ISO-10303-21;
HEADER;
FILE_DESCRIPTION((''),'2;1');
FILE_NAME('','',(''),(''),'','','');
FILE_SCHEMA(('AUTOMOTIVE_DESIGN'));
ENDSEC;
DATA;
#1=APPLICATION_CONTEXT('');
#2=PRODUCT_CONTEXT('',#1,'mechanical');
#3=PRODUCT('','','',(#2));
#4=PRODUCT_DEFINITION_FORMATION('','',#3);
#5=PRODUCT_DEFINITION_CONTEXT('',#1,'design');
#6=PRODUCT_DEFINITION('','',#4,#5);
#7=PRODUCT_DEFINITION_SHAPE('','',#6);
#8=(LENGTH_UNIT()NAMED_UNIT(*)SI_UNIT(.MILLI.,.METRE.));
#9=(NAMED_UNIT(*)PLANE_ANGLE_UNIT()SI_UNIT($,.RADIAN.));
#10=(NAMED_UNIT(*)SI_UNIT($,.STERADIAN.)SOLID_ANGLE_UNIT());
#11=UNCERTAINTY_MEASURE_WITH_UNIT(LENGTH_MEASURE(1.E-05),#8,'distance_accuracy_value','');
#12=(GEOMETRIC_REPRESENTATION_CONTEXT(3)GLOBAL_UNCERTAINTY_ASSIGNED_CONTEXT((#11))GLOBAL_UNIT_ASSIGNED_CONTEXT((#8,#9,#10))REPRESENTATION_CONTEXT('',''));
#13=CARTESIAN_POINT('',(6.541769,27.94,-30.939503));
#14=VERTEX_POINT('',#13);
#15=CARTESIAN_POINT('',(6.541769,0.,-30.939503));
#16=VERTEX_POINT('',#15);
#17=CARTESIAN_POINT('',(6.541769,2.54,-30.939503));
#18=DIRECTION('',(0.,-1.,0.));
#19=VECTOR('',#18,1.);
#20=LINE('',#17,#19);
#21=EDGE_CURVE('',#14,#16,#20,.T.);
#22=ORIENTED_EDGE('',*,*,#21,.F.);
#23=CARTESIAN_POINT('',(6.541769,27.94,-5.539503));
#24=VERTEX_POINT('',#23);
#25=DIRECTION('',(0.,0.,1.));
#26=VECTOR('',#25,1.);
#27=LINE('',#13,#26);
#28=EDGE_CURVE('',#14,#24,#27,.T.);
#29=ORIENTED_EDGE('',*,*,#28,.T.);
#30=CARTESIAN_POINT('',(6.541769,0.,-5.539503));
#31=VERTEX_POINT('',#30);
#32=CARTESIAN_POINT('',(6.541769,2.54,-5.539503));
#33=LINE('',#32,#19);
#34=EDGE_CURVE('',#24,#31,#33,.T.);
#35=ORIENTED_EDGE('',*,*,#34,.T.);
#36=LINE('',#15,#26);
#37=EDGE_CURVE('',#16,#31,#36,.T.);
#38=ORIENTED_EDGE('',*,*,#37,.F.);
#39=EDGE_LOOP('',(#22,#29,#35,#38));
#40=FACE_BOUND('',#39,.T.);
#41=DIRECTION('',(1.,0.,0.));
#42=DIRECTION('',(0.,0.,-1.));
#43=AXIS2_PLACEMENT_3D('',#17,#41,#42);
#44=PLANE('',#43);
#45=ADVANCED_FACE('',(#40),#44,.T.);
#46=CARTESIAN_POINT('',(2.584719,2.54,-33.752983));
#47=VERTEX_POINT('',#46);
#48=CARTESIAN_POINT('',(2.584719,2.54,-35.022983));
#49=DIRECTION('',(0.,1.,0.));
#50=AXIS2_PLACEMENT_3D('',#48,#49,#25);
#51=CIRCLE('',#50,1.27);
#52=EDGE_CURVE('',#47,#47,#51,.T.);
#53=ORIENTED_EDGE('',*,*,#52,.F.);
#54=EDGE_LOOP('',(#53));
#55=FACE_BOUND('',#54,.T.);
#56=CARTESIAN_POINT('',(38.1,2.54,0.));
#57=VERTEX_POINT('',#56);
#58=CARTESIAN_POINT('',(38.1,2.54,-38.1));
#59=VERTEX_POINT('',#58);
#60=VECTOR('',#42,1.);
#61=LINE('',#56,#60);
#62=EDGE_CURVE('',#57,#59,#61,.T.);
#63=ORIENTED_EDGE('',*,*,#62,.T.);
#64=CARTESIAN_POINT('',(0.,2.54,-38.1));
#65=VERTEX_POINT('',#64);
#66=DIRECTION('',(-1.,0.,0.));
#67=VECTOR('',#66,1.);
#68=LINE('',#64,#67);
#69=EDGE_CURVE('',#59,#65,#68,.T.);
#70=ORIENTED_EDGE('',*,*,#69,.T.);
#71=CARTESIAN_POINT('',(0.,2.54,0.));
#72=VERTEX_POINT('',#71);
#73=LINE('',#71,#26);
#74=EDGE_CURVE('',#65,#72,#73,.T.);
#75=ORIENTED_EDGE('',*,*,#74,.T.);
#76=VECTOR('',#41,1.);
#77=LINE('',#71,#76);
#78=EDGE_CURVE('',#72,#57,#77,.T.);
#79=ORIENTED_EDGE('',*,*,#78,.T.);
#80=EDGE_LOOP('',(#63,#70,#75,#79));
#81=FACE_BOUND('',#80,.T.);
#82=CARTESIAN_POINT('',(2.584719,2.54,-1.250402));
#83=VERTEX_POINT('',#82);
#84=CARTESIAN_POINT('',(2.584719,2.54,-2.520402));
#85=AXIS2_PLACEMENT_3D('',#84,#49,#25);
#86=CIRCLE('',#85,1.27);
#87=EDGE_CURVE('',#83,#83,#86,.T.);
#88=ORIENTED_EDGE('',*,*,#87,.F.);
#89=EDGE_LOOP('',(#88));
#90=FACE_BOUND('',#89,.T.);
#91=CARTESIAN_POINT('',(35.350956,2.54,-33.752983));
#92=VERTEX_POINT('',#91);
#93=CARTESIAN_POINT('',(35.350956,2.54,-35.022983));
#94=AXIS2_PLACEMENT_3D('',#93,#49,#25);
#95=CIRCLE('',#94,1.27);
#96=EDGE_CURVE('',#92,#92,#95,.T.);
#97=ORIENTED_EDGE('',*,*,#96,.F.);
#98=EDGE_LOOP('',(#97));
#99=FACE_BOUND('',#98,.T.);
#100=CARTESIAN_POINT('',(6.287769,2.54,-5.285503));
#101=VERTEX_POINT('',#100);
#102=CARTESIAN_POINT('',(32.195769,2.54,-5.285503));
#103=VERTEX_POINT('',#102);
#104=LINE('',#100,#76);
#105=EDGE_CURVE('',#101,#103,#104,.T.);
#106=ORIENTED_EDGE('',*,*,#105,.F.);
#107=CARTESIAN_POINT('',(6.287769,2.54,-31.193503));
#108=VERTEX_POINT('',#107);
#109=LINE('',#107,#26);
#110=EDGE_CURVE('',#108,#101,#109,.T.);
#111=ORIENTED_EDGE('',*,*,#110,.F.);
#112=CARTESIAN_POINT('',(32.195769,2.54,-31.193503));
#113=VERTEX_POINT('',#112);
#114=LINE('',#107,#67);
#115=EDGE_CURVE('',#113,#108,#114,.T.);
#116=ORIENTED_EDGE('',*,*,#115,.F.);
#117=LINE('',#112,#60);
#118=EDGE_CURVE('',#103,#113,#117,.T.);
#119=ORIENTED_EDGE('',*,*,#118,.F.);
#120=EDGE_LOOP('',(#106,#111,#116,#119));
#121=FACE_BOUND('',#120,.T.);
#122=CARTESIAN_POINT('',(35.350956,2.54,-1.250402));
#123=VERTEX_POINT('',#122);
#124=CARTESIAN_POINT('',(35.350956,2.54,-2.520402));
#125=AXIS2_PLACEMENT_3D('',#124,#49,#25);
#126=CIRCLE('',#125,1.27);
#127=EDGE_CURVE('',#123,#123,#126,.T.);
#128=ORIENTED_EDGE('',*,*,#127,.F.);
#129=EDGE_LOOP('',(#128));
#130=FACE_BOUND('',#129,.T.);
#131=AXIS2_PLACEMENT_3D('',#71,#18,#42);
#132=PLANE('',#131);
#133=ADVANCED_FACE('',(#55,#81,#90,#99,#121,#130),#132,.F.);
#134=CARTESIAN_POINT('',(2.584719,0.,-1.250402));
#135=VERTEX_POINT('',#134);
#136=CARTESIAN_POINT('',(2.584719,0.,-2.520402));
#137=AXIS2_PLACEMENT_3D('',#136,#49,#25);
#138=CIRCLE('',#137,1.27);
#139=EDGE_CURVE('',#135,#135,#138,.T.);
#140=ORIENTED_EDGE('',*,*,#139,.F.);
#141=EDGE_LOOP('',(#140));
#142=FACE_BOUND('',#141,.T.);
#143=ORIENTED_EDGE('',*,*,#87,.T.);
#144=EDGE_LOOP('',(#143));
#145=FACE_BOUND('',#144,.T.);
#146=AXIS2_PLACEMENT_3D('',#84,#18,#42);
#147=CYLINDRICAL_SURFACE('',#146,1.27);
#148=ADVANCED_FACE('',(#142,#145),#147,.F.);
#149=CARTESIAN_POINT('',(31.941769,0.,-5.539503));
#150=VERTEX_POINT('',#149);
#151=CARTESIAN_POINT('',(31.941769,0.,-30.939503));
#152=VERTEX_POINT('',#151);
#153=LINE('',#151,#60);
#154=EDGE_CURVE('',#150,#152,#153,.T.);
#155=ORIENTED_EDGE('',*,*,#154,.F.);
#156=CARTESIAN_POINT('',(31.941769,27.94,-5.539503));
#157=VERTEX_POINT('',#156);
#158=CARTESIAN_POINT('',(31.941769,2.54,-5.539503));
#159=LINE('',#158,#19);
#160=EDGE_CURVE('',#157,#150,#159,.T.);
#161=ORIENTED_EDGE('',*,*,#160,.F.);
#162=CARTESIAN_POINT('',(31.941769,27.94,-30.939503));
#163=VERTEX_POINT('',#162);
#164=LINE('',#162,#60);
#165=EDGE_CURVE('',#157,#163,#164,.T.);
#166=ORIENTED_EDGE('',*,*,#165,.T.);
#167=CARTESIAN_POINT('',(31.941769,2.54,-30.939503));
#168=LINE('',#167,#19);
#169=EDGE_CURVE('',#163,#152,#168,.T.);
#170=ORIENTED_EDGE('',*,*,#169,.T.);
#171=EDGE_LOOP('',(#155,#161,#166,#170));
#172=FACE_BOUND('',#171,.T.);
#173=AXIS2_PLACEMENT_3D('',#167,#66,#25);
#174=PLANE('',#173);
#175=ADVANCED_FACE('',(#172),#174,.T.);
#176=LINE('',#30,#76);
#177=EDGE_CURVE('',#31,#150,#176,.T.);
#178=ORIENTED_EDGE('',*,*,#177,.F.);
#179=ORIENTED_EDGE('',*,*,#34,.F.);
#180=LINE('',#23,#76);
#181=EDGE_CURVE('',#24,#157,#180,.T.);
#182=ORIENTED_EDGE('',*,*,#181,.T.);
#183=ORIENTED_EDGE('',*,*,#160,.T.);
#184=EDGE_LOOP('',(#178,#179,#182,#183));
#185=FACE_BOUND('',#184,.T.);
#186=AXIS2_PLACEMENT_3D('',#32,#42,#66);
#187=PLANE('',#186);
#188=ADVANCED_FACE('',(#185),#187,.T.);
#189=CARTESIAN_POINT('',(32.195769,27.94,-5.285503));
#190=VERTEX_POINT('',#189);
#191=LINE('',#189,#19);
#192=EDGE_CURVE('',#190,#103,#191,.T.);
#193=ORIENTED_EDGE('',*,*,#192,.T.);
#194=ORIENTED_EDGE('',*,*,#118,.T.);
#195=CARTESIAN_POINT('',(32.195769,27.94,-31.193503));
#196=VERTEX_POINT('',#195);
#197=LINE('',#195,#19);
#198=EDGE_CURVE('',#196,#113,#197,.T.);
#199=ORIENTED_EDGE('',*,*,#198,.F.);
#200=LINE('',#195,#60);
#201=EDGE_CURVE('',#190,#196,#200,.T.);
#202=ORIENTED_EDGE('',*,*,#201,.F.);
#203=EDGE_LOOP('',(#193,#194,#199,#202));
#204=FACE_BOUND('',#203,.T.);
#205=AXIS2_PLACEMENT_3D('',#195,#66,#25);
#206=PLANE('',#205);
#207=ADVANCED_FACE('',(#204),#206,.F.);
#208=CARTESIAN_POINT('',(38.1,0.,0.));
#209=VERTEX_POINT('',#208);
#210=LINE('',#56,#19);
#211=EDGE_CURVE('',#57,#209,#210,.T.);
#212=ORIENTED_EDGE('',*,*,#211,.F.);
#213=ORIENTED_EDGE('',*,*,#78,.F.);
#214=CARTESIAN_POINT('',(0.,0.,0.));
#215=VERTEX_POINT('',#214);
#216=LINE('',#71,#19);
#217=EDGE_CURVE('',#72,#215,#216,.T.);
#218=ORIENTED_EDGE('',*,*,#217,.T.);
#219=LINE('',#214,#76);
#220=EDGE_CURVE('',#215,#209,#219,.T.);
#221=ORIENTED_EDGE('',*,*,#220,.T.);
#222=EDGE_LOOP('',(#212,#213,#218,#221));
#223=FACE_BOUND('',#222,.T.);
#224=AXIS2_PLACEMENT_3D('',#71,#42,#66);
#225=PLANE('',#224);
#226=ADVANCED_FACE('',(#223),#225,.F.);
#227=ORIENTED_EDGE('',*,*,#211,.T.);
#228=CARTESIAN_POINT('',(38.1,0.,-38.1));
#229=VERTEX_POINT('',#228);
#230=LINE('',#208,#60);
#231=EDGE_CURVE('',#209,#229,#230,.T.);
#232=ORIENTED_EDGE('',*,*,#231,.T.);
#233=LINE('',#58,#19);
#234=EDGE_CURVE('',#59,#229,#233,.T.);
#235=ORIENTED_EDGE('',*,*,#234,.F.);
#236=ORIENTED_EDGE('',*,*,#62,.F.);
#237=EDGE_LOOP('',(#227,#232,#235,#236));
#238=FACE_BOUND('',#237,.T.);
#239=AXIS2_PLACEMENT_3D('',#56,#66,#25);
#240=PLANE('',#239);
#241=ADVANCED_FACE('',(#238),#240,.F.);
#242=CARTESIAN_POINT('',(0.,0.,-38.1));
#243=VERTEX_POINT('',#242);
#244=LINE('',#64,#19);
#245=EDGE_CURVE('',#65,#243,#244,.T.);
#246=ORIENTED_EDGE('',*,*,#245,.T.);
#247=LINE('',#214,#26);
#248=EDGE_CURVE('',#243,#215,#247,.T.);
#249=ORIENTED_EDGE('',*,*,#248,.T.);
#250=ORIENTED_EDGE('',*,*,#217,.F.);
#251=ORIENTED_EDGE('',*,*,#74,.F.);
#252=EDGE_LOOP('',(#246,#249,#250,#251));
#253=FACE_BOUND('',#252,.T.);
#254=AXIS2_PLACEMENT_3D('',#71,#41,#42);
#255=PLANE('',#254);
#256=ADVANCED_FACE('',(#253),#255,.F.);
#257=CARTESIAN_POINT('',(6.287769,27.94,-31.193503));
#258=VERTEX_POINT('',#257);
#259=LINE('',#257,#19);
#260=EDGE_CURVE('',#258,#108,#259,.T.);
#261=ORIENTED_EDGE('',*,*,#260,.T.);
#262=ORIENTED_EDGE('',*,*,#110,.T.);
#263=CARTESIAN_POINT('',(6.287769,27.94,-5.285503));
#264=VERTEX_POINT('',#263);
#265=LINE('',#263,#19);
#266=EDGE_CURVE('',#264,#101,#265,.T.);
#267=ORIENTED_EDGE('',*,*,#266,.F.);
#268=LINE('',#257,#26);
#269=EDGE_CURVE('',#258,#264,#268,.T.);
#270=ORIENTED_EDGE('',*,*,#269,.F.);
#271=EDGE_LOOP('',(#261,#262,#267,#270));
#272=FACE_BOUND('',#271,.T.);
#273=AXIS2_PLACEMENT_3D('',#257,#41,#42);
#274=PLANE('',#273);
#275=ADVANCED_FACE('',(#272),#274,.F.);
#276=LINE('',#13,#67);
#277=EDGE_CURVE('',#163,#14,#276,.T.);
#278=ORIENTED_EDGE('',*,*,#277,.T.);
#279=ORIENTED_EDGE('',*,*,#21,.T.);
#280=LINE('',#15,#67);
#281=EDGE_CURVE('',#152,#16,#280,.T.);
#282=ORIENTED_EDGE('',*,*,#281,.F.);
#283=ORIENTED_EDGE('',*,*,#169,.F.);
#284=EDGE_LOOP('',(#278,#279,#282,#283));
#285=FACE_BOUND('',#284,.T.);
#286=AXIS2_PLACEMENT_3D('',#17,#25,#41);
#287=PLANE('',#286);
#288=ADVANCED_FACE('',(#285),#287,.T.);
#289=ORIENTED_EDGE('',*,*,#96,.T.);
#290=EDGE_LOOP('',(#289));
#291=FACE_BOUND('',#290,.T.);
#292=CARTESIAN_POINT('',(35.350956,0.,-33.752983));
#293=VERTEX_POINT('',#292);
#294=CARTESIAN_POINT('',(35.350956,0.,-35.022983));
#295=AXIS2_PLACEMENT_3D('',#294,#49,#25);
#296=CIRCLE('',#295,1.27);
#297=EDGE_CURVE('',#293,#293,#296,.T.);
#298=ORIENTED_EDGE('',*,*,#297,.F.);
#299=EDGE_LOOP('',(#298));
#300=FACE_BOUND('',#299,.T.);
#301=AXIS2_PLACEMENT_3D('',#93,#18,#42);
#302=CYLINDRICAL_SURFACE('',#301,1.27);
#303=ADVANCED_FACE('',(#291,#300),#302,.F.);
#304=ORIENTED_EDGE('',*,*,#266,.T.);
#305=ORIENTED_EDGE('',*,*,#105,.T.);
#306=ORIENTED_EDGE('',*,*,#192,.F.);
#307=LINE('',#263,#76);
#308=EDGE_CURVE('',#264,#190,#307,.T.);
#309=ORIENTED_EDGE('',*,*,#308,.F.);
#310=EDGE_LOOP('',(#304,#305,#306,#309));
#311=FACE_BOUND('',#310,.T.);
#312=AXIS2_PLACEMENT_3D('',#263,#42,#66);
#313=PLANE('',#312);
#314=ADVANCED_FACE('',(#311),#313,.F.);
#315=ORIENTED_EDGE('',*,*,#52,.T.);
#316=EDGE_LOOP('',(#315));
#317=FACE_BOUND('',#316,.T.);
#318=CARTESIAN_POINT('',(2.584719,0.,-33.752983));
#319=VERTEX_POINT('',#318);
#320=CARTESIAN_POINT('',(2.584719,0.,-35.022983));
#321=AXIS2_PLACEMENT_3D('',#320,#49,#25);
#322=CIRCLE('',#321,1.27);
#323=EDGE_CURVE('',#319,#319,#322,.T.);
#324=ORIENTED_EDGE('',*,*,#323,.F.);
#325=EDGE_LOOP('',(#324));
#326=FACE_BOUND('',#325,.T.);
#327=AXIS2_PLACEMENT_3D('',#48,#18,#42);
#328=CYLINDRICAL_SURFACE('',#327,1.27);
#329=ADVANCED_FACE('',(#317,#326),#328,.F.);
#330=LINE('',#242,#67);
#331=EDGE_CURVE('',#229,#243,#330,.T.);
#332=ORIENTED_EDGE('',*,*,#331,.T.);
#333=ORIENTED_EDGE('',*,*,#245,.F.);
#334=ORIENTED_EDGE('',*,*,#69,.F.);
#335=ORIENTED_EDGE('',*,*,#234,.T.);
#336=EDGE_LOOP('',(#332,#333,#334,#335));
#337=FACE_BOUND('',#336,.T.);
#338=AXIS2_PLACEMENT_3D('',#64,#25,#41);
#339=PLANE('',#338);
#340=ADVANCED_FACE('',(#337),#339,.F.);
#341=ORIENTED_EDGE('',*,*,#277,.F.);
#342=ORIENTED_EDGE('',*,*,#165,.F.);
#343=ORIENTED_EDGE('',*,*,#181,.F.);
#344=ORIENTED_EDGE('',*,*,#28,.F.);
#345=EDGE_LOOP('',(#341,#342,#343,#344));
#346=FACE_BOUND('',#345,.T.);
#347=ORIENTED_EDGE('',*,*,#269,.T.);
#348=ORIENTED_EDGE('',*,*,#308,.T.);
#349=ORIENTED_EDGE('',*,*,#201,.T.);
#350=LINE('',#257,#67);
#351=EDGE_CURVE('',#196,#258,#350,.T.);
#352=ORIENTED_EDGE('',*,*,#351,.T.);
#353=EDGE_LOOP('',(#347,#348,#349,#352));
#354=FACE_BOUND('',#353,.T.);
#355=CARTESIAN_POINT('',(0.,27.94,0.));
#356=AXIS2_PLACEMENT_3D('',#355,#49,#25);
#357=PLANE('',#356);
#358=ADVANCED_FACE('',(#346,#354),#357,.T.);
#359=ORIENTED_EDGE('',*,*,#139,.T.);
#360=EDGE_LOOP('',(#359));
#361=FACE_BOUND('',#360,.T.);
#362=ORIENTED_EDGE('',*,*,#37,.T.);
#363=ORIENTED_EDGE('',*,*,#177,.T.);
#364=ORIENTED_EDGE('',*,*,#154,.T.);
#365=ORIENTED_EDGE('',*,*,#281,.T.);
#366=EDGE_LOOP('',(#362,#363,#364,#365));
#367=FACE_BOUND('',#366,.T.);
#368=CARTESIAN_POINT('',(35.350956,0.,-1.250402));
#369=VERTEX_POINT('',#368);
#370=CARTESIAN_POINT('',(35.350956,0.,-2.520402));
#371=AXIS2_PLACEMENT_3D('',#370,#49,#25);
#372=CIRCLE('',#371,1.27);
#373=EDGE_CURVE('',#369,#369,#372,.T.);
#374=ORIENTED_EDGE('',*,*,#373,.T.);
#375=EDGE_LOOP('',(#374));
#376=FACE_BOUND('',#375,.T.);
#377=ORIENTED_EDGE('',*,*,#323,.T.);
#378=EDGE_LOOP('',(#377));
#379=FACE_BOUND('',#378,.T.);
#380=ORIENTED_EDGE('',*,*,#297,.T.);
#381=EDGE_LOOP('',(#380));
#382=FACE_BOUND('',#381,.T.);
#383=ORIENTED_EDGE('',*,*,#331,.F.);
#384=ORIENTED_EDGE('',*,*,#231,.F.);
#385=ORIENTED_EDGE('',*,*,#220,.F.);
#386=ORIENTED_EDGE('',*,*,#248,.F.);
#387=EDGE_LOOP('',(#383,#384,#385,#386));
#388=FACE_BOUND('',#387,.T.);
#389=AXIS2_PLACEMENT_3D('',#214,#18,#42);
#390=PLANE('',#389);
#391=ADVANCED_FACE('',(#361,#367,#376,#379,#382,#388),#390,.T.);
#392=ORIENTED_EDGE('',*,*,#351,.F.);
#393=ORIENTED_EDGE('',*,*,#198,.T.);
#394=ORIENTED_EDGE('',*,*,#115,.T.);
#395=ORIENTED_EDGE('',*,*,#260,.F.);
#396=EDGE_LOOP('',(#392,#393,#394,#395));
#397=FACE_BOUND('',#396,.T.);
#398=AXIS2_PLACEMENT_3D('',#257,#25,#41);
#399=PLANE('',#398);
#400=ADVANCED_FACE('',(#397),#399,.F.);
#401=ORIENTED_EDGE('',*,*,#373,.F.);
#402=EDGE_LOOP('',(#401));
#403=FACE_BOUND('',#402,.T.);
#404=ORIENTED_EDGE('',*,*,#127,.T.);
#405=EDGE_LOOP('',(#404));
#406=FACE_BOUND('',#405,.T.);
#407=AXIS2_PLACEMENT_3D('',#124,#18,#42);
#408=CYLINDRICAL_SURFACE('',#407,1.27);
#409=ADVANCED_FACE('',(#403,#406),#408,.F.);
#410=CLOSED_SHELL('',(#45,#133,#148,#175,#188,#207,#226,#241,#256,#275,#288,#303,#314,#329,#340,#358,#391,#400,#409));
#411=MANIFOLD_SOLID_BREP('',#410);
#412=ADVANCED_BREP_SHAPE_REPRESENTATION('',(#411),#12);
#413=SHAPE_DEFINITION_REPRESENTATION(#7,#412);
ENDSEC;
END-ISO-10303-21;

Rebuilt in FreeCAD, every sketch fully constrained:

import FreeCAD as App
import Part
import Sketcher
Q = App.Units.Quantity


def add_polygon(sketch, points):
    """Adds a closed chain of lines whose ends are joined by coincident constraints."""
    first, n = sketch.GeometryCount, len(points)
    for a, b in zip(points, points[1:] + points[:1]):
        sketch.addGeometry(Part.LineSegment(App.Vector(*a, 0), App.Vector(*b, 0)), False)
    for i in range(n):
        sketch.addConstraint(Sketcher.Constraint("Coincident", first + i, 2, first + (i + 1) % n, 1))

doc = App.newDocument("Part")
body = doc.addObject("PartDesign::Body", "Body")

# Sketch on XZ plane
sketch1 = body.newObject("Sketcher::SketchObject", "Sketch")
sketch1.AttachmentSupport = (doc.getObject("XZ_Plane"), [""])
sketch1.MapMode = "FlatFace"
add_polygon(sketch1, [(0, -38.1), (0, 0), (38.1, 0), (38.1, -38.1)])  # lines 0-3
sketch1.addGeometry(Part.Circle(App.Vector(2.6, -2.5, 0), App.Vector(0, 0, 1), 1.3), False)  # 4
sketch1.addGeometry(Part.Circle(App.Vector(35.4, -2.5, 0), App.Vector(0, 0, 1), 1.3), False)  # 5
add_polygon(sketch1, [(31.9, -5.5), (6.5, -5.5), (6.5, -30.9), (31.9, -30.9)])  # lines 6-9
sketch1.addGeometry(Part.Circle(App.Vector(2.6, -35, 0), App.Vector(0, 0, 1), 1.3), False)  # 10
sketch1.addGeometry(Part.Circle(App.Vector(35.4, -35, 0), App.Vector(0, 0, 1), 1.3), False)  # 11
sketch1.addConstraint(Sketcher.Constraint("Vertical", 0))
sketch1.addConstraint(Sketcher.Constraint("Horizontal", 1))
sketch1.addConstraint(Sketcher.Constraint("Vertical", 2))
sketch1.addConstraint(Sketcher.Constraint("Horizontal", 3))
sketch1.addConstraint(Sketcher.Constraint("Horizontal", 6))
sketch1.addConstraint(Sketcher.Constraint("Vertical", 7))
sketch1.addConstraint(Sketcher.Constraint("Horizontal", 8))
sketch1.addConstraint(Sketcher.Constraint("Vertical", 9))
sketch1.addConstraint(Sketcher.Constraint("Coincident", 0, 2, -1, 1))
sketch1.addConstraint(Sketcher.Constraint("Equal", 4, 5))
sketch1.addConstraint(Sketcher.Constraint("Equal", 5, 10))
sketch1.addConstraint(Sketcher.Constraint("Equal", 10, 11))
sketch1.addConstraint(Sketcher.Constraint("Horizontal", 4, 3, 5, 3))
sketch1.addConstraint(Sketcher.Constraint("Horizontal", 10, 3, 11, 3))
sketch1.addConstraint(Sketcher.Constraint("Vertical", 4, 3, 10, 3))
sketch1.addConstraint(Sketcher.Constraint("Vertical", 5, 3, 11, 3))
sketch1.addConstraint(Sketcher.Constraint("Equal", 3, 0))
sketch1.addConstraint(Sketcher.Constraint("Equal", 8, 7))
sketch1.addConstraint(Sketcher.Constraint("Diameter", 4, Q("0.1 in")))
sketch1.addConstraint(Sketcher.Constraint("DistanceX", 6, 2, 6, 1, Q("1 in")))
sketch1.addConstraint(Sketcher.Constraint("DistanceX", 1, 1, 1, 2, Q("1.5 in")))
sketch1.addConstraint(Sketcher.Constraint("DistanceY", 4, 3, -1, 1, 2.520402))
sketch1.addConstraint(Sketcher.Constraint("DistanceY", 6, 2, 4, 3, 3.019101))
sketch1.addConstraint(Sketcher.Constraint("DistanceX", -1, 1, 4, 3, 2.584719))
sketch1.addConstraint(Sketcher.Constraint("DistanceX", -1, 1, 6, 2, 6.541769))
sketch1.addConstraint(Sketcher.Constraint("DistanceY", 10, 3, 4, 3, 32.502581))
sketch1.addConstraint(Sketcher.Constraint("DistanceX", -1, 1, 5, 3, 35.350956))
pad1 = body.newObject("PartDesign::Pad", "Pad")
pad1.Profile = sketch1
pad1.Length = Q("0.1 in")
pad1.Reversed = True

# Sketch on XZ plane
sketch2 = body.newObject("Sketcher::SketchObject", "Sketch001")
sketch2.AttachmentSupport = (doc.getObject("XZ_Plane"), [""])
sketch2.MapMode = "FlatFace"
sketch2.AttachmentOffset = App.Placement(App.Vector(0, 0, -0.1 * 25.4), App.Rotation())
add_polygon(sketch2, [(6, -31), (6, -5), (32, -5), (32, -31)])  # lines 0-3
add_polygon(sketch2, [(32, -6), (7, -6), (7, -31), (32, -31)])  # lines 4-7
sketch2.addConstraint(Sketcher.Constraint("Vertical", 0))
sketch2.addConstraint(Sketcher.Constraint("Horizontal", 1))
sketch2.addConstraint(Sketcher.Constraint("Vertical", 2))
sketch2.addConstraint(Sketcher.Constraint("Horizontal", 3))
sketch2.addConstraint(Sketcher.Constraint("Horizontal", 4))
sketch2.addConstraint(Sketcher.Constraint("Vertical", 5))
sketch2.addConstraint(Sketcher.Constraint("Horizontal", 6))
sketch2.addConstraint(Sketcher.Constraint("Vertical", 7))
sketch2.addConstraint(Sketcher.Constraint("Equal", 3, 0))
sketch2.addConstraint(Sketcher.Constraint("Equal", 6, 5))
sketch2.addConstraint(Sketcher.Constraint("DistanceX", 4, 2, 4, 1, Q("1 in")))
sketch2.addConstraint(Sketcher.Constraint("DistanceX", 1, 1, 1, 2, Q("1.02 in")))
sketch2.addConstraint(Sketcher.Constraint("DistanceX", 0, 2, 4, 2, Q("0.01 in")))
sketch2.addConstraint(Sketcher.Constraint("DistanceY", 4, 2, 0, 2, Q("0.01 in")))
sketch2.addConstraint(Sketcher.Constraint("DistanceX", -1, 1, 0, 2, 6.287769))
sketch2.addConstraint(Sketcher.Constraint("DistanceY", 0, 2, -1, 1, 5.285503))
pad2 = body.newObject("PartDesign::Pad", "Pad001")
pad2.Profile = sketch2
pad2.Length = Q("1 in")
pad2.Reversed = True

doc.recompute()
